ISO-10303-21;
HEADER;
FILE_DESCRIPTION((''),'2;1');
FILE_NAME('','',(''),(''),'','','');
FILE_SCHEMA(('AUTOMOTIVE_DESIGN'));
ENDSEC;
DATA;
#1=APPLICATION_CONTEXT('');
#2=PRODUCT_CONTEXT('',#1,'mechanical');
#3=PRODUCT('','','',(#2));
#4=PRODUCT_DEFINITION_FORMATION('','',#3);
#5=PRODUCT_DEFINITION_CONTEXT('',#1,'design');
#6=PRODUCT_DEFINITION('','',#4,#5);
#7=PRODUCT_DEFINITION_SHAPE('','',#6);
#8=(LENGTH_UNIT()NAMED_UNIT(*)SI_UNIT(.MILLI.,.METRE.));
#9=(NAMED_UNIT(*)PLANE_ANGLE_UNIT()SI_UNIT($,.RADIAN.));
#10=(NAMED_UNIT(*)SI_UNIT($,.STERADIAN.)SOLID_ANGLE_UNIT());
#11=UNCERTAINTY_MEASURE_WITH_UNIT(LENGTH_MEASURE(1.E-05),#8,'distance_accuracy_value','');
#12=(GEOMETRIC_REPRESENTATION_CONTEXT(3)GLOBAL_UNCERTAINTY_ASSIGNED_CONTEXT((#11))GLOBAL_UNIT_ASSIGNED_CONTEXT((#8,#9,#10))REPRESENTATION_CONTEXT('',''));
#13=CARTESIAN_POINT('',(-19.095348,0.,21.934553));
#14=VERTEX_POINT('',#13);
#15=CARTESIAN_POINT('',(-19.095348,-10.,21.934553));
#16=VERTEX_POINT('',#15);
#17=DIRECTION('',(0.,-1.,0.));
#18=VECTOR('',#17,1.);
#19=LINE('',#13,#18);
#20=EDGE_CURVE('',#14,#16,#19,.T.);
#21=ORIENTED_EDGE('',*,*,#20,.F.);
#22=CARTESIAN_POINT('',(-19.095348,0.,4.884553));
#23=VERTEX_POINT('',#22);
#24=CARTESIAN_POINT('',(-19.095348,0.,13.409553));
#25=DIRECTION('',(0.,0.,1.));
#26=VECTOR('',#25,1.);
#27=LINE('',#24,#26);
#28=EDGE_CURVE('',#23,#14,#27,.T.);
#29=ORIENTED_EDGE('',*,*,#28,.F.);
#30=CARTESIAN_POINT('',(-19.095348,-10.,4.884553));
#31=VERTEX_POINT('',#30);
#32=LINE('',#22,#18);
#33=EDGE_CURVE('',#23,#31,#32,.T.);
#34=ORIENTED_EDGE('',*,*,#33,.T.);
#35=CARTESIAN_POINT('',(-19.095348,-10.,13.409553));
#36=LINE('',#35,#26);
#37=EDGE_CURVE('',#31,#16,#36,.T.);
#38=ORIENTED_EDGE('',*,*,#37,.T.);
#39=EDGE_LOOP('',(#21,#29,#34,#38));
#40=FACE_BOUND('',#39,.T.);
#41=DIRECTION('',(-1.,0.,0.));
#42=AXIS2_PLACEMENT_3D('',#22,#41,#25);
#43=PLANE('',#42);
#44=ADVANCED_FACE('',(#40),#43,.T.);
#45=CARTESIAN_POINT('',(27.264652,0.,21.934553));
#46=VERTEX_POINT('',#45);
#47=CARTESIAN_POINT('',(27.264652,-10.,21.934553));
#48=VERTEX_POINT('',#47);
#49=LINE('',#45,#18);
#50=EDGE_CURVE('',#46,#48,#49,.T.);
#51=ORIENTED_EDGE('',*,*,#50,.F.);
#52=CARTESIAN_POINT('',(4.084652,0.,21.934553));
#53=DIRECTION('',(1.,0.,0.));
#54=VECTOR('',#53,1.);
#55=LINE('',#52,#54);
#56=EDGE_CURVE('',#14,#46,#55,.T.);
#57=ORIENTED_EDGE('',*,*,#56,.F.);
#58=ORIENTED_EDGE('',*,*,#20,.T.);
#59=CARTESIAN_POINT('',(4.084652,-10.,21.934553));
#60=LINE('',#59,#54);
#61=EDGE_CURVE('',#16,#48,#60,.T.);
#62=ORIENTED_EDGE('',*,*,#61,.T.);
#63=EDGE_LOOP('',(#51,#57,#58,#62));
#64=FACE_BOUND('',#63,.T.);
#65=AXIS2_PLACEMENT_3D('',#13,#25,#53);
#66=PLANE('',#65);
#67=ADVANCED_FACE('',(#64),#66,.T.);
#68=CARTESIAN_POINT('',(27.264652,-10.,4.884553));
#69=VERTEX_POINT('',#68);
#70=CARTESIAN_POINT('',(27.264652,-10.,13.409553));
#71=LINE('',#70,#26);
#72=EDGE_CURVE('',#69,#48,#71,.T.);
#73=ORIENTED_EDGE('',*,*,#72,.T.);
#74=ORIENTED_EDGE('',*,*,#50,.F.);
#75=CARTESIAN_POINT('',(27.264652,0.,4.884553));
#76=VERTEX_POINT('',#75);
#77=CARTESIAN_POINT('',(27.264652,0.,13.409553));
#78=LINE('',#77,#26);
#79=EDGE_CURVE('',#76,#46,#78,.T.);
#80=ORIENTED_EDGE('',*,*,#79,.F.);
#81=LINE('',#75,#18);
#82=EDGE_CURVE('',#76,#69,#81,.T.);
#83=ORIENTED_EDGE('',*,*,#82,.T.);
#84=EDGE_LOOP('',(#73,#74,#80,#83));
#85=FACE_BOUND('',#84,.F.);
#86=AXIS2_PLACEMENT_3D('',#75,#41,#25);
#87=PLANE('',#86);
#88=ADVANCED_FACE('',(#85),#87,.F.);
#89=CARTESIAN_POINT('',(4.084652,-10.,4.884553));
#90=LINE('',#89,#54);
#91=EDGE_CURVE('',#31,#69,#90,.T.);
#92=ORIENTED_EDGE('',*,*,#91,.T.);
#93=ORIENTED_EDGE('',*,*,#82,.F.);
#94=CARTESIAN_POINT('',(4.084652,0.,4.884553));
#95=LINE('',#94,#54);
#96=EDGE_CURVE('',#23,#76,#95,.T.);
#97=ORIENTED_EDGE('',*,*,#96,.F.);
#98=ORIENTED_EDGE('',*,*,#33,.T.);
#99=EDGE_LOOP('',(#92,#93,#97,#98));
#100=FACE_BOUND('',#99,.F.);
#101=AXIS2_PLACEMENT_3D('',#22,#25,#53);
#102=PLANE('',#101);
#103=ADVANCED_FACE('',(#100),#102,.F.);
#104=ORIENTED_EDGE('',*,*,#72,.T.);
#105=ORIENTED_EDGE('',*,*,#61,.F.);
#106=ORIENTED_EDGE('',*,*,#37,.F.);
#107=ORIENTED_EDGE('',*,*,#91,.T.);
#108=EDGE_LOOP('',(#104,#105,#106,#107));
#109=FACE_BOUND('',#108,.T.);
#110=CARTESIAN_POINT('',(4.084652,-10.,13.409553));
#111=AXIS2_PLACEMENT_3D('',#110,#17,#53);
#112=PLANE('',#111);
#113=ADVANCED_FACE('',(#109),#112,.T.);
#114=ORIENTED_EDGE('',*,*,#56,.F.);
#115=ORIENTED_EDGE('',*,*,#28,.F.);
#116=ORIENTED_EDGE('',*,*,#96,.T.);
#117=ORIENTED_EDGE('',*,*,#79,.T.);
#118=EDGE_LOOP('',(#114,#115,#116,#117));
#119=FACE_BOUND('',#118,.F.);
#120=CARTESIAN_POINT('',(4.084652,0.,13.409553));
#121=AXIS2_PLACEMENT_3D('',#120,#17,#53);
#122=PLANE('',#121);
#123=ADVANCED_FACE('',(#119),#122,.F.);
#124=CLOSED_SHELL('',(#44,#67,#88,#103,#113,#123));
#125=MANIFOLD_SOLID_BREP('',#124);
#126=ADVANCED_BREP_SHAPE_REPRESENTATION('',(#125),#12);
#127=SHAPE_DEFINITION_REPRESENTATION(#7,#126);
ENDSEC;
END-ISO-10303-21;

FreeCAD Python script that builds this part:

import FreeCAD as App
import Part
import Sketcher

V = App.Vector

doc = App.newDocument("Part")
body = doc.addObject("PartDesign::Body", "Body")

# Sketch on XZ plane
sketch1 = body.newObject("Sketcher::SketchObject", "Sketch")
sketch1.AttachmentSupport = (doc.getObject("XZ_Plane"), [""])
sketch1.MapMode = "FlatFace"
sketch1.addGeometry([
    Part.LineSegment(V(-19, 22, 0), V(-19, 5, 0)),
    Part.LineSegment(V(-19, 5, 0), V(27, 5, 0)),
    Part.LineSegment(V(27, 5, 0), V(27, 22, 0)),
    Part.LineSegment(V(27, 22, 0), V(-19, 22, 0)),
], False)
sketch1.addConstraint([
    Sketcher.Constraint("Coincident", 0, 2, 1, 1),
    Sketcher.Constraint("Coincident", 1, 2, 2, 1),
    Sketcher.Constraint("Coincident", 2, 2, 3, 1),
    Sketcher.Constraint("Coincident", 3, 2, 0, 1),
    Sketcher.Constraint("Vertical", 0),
    Sketcher.Constraint("Horizontal", 1),
    Sketcher.Constraint("Vertical", 2),
    Sketcher.Constraint("Horizontal", 3),
    Sketcher.Constraint("DistanceX", 1, 1, 1, 2, 46.36),
    Sketcher.Constraint("DistanceY", 0, 2, 0, 1, 17.05),
    Sketcher.Constraint("DistanceX", 0, 2, -1, 1, 19.095348),
    Sketcher.Constraint("DistanceY", -1, 1, 0, 2, 4.884553),
])
pad1 = body.newObject("PartDesign::Pad", "Pad")
pad1.Profile = sketch1
pad1.Length = 10

doc.recompute()
